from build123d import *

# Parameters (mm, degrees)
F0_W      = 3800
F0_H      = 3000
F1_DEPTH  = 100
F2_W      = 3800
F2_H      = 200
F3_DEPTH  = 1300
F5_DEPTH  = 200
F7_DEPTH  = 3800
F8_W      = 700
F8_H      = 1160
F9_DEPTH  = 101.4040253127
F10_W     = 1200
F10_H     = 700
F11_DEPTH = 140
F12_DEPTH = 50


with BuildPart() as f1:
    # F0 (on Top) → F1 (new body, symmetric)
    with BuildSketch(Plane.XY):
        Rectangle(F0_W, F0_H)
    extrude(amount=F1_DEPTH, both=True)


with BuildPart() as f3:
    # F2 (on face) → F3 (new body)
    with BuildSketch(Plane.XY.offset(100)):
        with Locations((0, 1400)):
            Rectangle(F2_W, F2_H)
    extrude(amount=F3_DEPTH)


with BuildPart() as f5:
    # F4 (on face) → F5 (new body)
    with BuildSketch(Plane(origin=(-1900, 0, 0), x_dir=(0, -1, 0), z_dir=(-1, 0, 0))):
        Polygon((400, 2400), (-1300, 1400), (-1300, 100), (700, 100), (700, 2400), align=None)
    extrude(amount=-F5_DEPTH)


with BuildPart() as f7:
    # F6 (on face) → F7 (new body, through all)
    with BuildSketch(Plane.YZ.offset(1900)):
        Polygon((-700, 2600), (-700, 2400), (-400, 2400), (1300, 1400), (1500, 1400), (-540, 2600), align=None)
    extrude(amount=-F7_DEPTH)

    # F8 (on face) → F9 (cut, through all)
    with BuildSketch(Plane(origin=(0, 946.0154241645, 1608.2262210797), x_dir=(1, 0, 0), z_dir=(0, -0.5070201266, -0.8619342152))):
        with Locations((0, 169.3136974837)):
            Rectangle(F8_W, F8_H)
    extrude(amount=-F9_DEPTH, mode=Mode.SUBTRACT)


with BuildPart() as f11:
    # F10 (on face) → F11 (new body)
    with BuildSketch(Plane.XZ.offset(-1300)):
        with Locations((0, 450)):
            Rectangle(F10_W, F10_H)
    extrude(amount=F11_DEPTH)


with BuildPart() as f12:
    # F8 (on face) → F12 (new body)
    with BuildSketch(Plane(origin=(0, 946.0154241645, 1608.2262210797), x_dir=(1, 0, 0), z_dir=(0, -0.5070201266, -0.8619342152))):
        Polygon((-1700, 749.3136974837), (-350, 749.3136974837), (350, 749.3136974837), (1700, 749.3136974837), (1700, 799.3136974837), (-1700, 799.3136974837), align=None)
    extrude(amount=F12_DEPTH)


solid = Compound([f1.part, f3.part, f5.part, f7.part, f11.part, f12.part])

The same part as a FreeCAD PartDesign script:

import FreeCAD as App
import Part
import Sketcher
from FreeCAD import Vector
Q = App.Units.Quantity


def add_polygon(sketch, points):
    """Adds a closed chain of lines whose ends are joined by coincident constraints."""
    first, n = sketch.GeometryCount, len(points)
    for a, b in zip(points, points[1:] + points[:1]):
        sketch.addGeometry(Part.LineSegment(App.Vector(*a, 0), App.Vector(*b, 0)), False)
    for i in range(n):
        sketch.addConstraint(Sketcher.Constraint("Coincident", first + i, 2, first + (i + 1) % n, 1))

doc = App.newDocument("Part")
body = doc.addObject("PartDesign::Body", "Body")

# Sketch on XY plane
sketch1 = body.newObject("Sketcher::SketchObject", "Sketch")
sketch1.AttachmentSupport = (doc.getObject("XY_Plane"), [""])
sketch1.MapMode = "FlatFace"
add_polygon(sketch1, [(-1900, 1500), (-1900, -1500), (1900, -1500), (1900, 1500)])  # lines 0-3
sketch1.addConstraint(Sketcher.Constraint("Vertical", 0))
sketch1.addConstraint(Sketcher.Constraint("Horizontal", 1))
sketch1.addConstraint(Sketcher.Constraint("Vertical", 2))
sketch1.addConstraint(Sketcher.Constraint("Horizontal", 3))
sketch1.addConstraint(Sketcher.Constraint("Symmetric", 0, 2, 2, 2, -1, 1))
sketch1.addConstraint(Sketcher.Constraint("DistanceX", 1, 1, 1, 2, Q("3800 mm")))
sketch1.addConstraint(Sketcher.Constraint("DistanceY", 0, 2, 0, 1, Q("3000 mm")))
pad1 = body.newObject("PartDesign::Pad", "Pad")
pad1.Profile = sketch1
pad1.Length = 200
pad1.Midplane = True
body2 = doc.addObject("PartDesign::Body", "Body001")

# Sketch on XY plane
sketch2 = body2.newObject("Sketcher::SketchObject", "Sketch001")
sketch2.AttachmentSupport = (doc.getObject("XY_Plane001"), [""])
sketch2.MapMode = "FlatFace"
sketch2.AttachmentOffset = App.Placement(Vector(0, 0, 100), App.Rotation())
add_polygon(sketch2, [(-1900, 1500), (-1900, 1300), (1900, 1300), (1900, 1500)])  # lines 0-3
sketch2.addConstraint(Sketcher.Constraint("Vertical", 0))
sketch2.addConstraint(Sketcher.Constraint("Horizontal", 1))
sketch2.addConstraint(Sketcher.Constraint("Vertical", 2))
sketch2.addConstraint(Sketcher.Constraint("Horizontal", 3))
sketch2.addConstraint(Sketcher.Constraint("DistanceX", 1, 1, 1, 2, Q("3800 mm")))
sketch2.addConstraint(Sketcher.Constraint("DistanceY", 0, 2, 0, 1, Q("200 mm")))
sketch2.addConstraint(Sketcher.Constraint("DistanceX", 0, 2, -1, 1, Q("1900 mm")))
sketch2.addConstraint(Sketcher.Constraint("DistanceY", -1, 1, 0, 2, Q("1300 mm")))
pad2 = body2.newObject("PartDesign::Pad", "Pad001")
pad2.Profile = sketch2
pad2.Length = 1300
body3 = doc.addObject("PartDesign::Body", "Body002")

# Sketch on YZ plane
sketch3 = body3.newObject("Sketcher::SketchObject", "Sketch002")
sketch3.AttachmentSupport = (doc.getObject("YZ_Plane002"), [""])
sketch3.MapMode = "FlatFace"
sketch3.AttachmentOffset = App.Placement(Vector(0, 0, -1900), App.Rotation())
add_polygon(sketch3, [(-400, 2400), (1300, 1400), (1300, 100), (-700, 100), (-700, 2400)])  # lines 0-4
sketch3.addConstraint(Sketcher.Constraint("Vertical", 1))
sketch3.addConstraint(Sketcher.Constraint("Horizontal", 2))
sketch3.addConstraint(Sketcher.Constraint("Vertical", 3))
sketch3.addConstraint(Sketcher.Constraint("Horizontal", 4))
sketch3.addConstraint(Sketcher.Constraint("DistanceX", 2, 2, 2, 1, Q("2000 mm")))
sketch3.addConstraint(Sketcher.Constraint("DistanceX", 4, 1, 4, 2, Q("300 mm")))
sketch3.addConstraint(Sketcher.Constraint("DistanceY", 1, 2, 1, 1, Q("1300 mm")))
sketch3.addConstraint(Sketcher.Constraint("DistanceY", 3, 1, 3, 2, Q("2300 mm")))
sketch3.addConstraint(Sketcher.Constraint("DistanceX", -1, 1, 0, 2, Q("1300 mm")))
sketch3.addConstraint(Sketcher.Constraint("DistanceY", -1, 1, 0, 2, Q("1400 mm")))
pad3 = body3.newObject("PartDesign::Pad", "Pad002")
pad3.Profile = sketch3
pad3.Length = 200
body4 = doc.addObject("PartDesign::Body", "Body003")

# Sketch on YZ plane
sketch4 = body4.newObject("Sketcher::SketchObject", "Sketch003")
sketch4.AttachmentSupport = (doc.getObject("YZ_Plane003"), [""])
sketch4.MapMode = "FlatFace"
sketch4.AttachmentOffset = App.Placement(Vector(0, 0, 1900), App.Rotation())
add_polygon(sketch4, [(-700, 2600), (-700, 2400), (-400, 2400), (1300, 1400), (1500, 1400), (-540, 2600)])  # lines 0-5
sketch4.addConstraint(Sketcher.Constraint("Vertical", 0))
sketch4.addConstraint(Sketcher.Constraint("Horizontal", 1))
sketch4.addConstraint(Sketcher.Constraint("Horizontal", 3))
sketch4.addConstraint(Sketcher.Constraint("Horizontal", 5))
sketch4.addConstraint(Sketcher.Constraint("Parallel", 2, 4))
sketch4.addConstraint(Sketcher.Constraint("Equal", 3, 0))
sketch4.addConstraint(Sketcher.Constraint("DistanceX", 1, 1, 1, 2, Q("300 mm")))
sketch4.addConstraint(Sketcher.Constraint("DistanceX", 3, 1, 3, 2, Q("200 mm")))
sketch4.addConstraint(Sketcher.Constraint("DistanceX", 5, 2, 5, 1, Q("160 mm")))
sketch4.addConstraint(Sketcher.Constraint("DistanceX", 0, 2, -1, 1, Q("700 mm")))
sketch4.addConstraint(Sketcher.Constraint("DistanceY", -1, 1, 0, 2, Q("2400 mm")))
sketch4.addConstraint(Sketcher.Constraint("DistanceX", -1, 1, 2, 2, Q("1300 mm")))
pad4 = body4.newObject("PartDesign::Pad", "Pad003")
pad4.Profile = sketch4
pad4.Length = 3800
pad4.Reversed = True

# Sketch on an angled plane
sketch5 = body4.newObject("Sketcher::SketchObject", "Sketch004")
sketch5.Placement = App.Placement(Vector(0, 946.015424, 1608.226221), App.Rotation(Vector(1, 0, 0), Vector(0, -0.861934215, 0.507020127), Vector(0, -0.507020127, -0.861934215), "ZXY"))
add_polygon(sketch5, [(-350, 749), (-350, -411), (350, -411), (350, 749)])  # lines 0-3
sketch5.addConstraint(Sketcher.Constraint("Vertical", 0))
sketch5.addConstraint(Sketcher.Constraint("Horizontal", 1))
sketch5.addConstraint(Sketcher.Constraint("Vertical", 2))
sketch5.addConstraint(Sketcher.Constraint("Horizontal", 3))
sketch5.addConstraint(Sketcher.Constraint("DistanceX", 1, 1, 1, 2, Q("700 mm")))
sketch5.addConstraint(Sketcher.Constraint("DistanceY", 0, 2, 0, 1, Q("1160 mm")))
sketch5.addConstraint(Sketcher.Constraint("DistanceX", 0, 2, -1, 1, Q("350 mm")))
sketch5.addConstraint(Sketcher.Constraint("DistanceY", 0, 2, -1, 1, Q("410.686303 mm")))
pocket1 = body4.newObject("PartDesign::Pocket", "Pocket")
pocket1.Profile = sketch5
pocket1.Type = "ThroughAll"
body5 = doc.addObject("PartDesign::Body", "Body004")

# Sketch on XZ plane
sketch6 = body5.newObject("Sketcher::SketchObject", "Sketch005")
sketch6.AttachmentSupport = (doc.getObject("XZ_Plane004"), [""])
sketch6.MapMode = "FlatFace"
sketch6.AttachmentOffset = App.Placement(Vector(0, 0, -1300), App.Rotation())
add_polygon(sketch6, [(-600, 800), (-600, 100), (600, 100), (600, 800)])  # lines 0-3
sketch6.addConstraint(Sketcher.Constraint("Vertical", 0))
sketch6.addConstraint(Sketcher.Constraint("Horizontal", 1))
sketch6.addConstraint(Sketcher.Constraint("Vertical", 2))
sketch6.addConstraint(Sketcher.Constraint("Horizontal", 3))
sketch6.addConstraint(Sketcher.Constraint("DistanceX", 1, 1, 1, 2, Q("1200 mm")))
sketch6.addConstraint(Sketcher.Constraint("DistanceY", 0, 2, 0, 1, Q("700 mm")))
sketch6.addConstraint(Sketcher.Constraint("DistanceX", 0, 2, -1, 1, Q("600 mm")))
sketch6.addConstraint(Sketcher.Constraint("DistanceY", -1, 1, 0, 2, Q("100 mm")))
pad5 = body5.newObject("PartDesign::Pad", "Pad004")
pad5.Profile = sketch6
pad5.Length = 140
body6 = doc.addObject("PartDesign::Body", "Body005")

# Sketch on an angled plane
sketch7 = body6.newObject("Sketcher::SketchObject", "Sketch006")
sketch7.Placement = App.Placement(Vector(0, 946.015424, 1608.226221), App.Rotation(Vector(1, 0, 0), Vector(0, -0.861934215, 0.507020127), Vector(0, -0.507020127, -0.861934215), "ZXY"))
add_polygon(sketch7, [(-1700, 749), (1700, 749), (1700, 799), (-1700, 799)])  # lines 0-3
sketch7.addConstraint(Sketcher.Constraint("Horizontal", 0))
sketch7.addConstraint(Sketcher.Constraint("Vertical", 1))
sketch7.addConstraint(Sketcher.Constraint("Horizontal", 2))
sketch7.addConstraint(Sketcher.Constraint("Vertical", 3))
sketch7.addConstraint(Sketcher.Constraint("DistanceX", 0, 1, 0, 2, Q("3400 mm")))
sketch7.addConstraint(Sketcher.Constraint("DistanceY", 1, 1, 1, 2, Q("50 mm")))
sketch7.addConstraint(Sketcher.Constraint("DistanceX", -1, 1, 0, 2, Q("1700 mm")))
sketch7.addConstraint(Sketcher.Constraint("DistanceY", -1, 1, 0, 2, Q("749.313698 mm")))
pad6 = body6.newObject("PartDesign::Pad", "Pad005")
pad6.Profile = sketch7
pad6.Length = 50

doc.recompute()
